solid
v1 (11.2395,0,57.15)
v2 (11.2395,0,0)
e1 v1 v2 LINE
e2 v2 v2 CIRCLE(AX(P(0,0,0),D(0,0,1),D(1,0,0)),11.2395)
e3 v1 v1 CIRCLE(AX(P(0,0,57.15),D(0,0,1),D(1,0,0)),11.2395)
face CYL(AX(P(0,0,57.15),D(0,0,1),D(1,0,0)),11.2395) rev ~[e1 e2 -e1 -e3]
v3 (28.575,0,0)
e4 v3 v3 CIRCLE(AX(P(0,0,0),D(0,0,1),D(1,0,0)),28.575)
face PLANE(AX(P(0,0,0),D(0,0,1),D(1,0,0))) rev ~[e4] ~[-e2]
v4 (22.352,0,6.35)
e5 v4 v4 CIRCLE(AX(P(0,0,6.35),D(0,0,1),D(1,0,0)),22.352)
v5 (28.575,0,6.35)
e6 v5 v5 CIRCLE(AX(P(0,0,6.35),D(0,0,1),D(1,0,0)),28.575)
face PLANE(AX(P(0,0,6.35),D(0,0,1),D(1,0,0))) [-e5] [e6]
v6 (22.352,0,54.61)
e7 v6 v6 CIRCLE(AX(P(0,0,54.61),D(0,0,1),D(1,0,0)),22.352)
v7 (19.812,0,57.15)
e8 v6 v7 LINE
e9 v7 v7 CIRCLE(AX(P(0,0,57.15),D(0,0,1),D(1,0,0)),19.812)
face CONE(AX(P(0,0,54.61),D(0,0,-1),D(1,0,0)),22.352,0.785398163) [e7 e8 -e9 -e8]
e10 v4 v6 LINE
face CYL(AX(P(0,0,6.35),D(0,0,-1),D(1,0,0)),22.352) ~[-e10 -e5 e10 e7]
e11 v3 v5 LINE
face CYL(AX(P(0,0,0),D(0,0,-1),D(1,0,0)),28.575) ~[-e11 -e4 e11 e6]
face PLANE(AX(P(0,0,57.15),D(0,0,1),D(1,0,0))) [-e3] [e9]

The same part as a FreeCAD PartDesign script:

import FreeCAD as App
import Part
import Sketcher
Q = App.Units.Quantity


def edges_at(feature, points):
    """Names of the edges that pass closest to the given points."""
    edges = feature.Shape.Edges
    near = lambda p: min(range(len(edges)), key=lambda i: edges[i].distToShape(Part.Vertex(*p))[0])
    return sorted({f"Edge{near(p) + 1}" for p in points})

doc = App.newDocument("Part")
body = doc.addObject("PartDesign::Body", "Body")

# Sketch on XY plane
sketch1 = body.newObject("Sketcher::SketchObject", "Sketch")
sketch1.AttachmentSupport = (doc.getObject("XY_Plane"), [""])
sketch1.MapMode = "FlatFace"
sketch1.addGeometry(Part.Circle(App.Vector(0, 0, 0), App.Vector(0, 0, 1), 28.575), False)
sketch1.addConstraint(Sketcher.Constraint("Coincident", 0, 3, -1, 1))
sketch1.addConstraint(Sketcher.Constraint("Diameter", 0, Q("2.25 in")))
pad1 = body.newObject("PartDesign::Pad", "Pad")
pad1.Profile = sketch1
pad1.Length = Q("0.25 in")

# Sketch on XY plane
sketch2 = body.newObject("Sketcher::SketchObject", "Sketch001")
sketch2.AttachmentSupport = (doc.getObject("XY_Plane"), [""])
sketch2.MapMode = "FlatFace"
sketch2.AttachmentOffset = App.Placement(App.Vector(0, 0, 0.25 * 25.4), App.Rotation())
sketch2.addGeometry(Part.Circle(App.Vector(0, 0, 0), App.Vector(0, 0, 1), 22.352), False)
sketch2.addConstraint(Sketcher.Constraint("Coincident", 0, 3, -1, 1))
sketch2.addConstraint(Sketcher.Constraint("Diameter", 0, Q("1.76 in")))
pad2 = body.newObject("PartDesign::Pad", "Pad001")
pad2.Profile = sketch2
pad2.Length = Q("2 in")

# Sketch on XY plane
sketch3 = body.newObject("Sketcher::SketchObject", "Sketch002")
sketch3.AttachmentSupport = (doc.getObject("XY_Plane"), [""])
sketch3.MapMode = "FlatFace"
sketch3.AttachmentOffset = App.Placement(App.Vector(0, 0, 2.25 * 25.4), App.Rotation())
sketch3.addGeometry(Part.Circle(App.Vector(0, 0, 0), App.Vector(0, 0, 1), 11.2395), False)
sketch3.addConstraint(Sketcher.Constraint("Coincident", 0, 3, -1, 1))
sketch3.addConstraint(Sketcher.Constraint("Diameter", 0, Q("0.885 in")))
pocket1 = body.newObject("PartDesign::Pocket", "Pocket")
pocket1.Profile = sketch3
pocket1.Type = "ThroughAll"
doc.recompute()

chamfer = body.newObject("PartDesign::Chamfer", "Chamfer")
chamfer.Base = (pocket1, edges_at(pocket1, [(-22.352, 0, 57.15)]))
chamfer.Size = Q("0.1 in")

doc.recompute()
